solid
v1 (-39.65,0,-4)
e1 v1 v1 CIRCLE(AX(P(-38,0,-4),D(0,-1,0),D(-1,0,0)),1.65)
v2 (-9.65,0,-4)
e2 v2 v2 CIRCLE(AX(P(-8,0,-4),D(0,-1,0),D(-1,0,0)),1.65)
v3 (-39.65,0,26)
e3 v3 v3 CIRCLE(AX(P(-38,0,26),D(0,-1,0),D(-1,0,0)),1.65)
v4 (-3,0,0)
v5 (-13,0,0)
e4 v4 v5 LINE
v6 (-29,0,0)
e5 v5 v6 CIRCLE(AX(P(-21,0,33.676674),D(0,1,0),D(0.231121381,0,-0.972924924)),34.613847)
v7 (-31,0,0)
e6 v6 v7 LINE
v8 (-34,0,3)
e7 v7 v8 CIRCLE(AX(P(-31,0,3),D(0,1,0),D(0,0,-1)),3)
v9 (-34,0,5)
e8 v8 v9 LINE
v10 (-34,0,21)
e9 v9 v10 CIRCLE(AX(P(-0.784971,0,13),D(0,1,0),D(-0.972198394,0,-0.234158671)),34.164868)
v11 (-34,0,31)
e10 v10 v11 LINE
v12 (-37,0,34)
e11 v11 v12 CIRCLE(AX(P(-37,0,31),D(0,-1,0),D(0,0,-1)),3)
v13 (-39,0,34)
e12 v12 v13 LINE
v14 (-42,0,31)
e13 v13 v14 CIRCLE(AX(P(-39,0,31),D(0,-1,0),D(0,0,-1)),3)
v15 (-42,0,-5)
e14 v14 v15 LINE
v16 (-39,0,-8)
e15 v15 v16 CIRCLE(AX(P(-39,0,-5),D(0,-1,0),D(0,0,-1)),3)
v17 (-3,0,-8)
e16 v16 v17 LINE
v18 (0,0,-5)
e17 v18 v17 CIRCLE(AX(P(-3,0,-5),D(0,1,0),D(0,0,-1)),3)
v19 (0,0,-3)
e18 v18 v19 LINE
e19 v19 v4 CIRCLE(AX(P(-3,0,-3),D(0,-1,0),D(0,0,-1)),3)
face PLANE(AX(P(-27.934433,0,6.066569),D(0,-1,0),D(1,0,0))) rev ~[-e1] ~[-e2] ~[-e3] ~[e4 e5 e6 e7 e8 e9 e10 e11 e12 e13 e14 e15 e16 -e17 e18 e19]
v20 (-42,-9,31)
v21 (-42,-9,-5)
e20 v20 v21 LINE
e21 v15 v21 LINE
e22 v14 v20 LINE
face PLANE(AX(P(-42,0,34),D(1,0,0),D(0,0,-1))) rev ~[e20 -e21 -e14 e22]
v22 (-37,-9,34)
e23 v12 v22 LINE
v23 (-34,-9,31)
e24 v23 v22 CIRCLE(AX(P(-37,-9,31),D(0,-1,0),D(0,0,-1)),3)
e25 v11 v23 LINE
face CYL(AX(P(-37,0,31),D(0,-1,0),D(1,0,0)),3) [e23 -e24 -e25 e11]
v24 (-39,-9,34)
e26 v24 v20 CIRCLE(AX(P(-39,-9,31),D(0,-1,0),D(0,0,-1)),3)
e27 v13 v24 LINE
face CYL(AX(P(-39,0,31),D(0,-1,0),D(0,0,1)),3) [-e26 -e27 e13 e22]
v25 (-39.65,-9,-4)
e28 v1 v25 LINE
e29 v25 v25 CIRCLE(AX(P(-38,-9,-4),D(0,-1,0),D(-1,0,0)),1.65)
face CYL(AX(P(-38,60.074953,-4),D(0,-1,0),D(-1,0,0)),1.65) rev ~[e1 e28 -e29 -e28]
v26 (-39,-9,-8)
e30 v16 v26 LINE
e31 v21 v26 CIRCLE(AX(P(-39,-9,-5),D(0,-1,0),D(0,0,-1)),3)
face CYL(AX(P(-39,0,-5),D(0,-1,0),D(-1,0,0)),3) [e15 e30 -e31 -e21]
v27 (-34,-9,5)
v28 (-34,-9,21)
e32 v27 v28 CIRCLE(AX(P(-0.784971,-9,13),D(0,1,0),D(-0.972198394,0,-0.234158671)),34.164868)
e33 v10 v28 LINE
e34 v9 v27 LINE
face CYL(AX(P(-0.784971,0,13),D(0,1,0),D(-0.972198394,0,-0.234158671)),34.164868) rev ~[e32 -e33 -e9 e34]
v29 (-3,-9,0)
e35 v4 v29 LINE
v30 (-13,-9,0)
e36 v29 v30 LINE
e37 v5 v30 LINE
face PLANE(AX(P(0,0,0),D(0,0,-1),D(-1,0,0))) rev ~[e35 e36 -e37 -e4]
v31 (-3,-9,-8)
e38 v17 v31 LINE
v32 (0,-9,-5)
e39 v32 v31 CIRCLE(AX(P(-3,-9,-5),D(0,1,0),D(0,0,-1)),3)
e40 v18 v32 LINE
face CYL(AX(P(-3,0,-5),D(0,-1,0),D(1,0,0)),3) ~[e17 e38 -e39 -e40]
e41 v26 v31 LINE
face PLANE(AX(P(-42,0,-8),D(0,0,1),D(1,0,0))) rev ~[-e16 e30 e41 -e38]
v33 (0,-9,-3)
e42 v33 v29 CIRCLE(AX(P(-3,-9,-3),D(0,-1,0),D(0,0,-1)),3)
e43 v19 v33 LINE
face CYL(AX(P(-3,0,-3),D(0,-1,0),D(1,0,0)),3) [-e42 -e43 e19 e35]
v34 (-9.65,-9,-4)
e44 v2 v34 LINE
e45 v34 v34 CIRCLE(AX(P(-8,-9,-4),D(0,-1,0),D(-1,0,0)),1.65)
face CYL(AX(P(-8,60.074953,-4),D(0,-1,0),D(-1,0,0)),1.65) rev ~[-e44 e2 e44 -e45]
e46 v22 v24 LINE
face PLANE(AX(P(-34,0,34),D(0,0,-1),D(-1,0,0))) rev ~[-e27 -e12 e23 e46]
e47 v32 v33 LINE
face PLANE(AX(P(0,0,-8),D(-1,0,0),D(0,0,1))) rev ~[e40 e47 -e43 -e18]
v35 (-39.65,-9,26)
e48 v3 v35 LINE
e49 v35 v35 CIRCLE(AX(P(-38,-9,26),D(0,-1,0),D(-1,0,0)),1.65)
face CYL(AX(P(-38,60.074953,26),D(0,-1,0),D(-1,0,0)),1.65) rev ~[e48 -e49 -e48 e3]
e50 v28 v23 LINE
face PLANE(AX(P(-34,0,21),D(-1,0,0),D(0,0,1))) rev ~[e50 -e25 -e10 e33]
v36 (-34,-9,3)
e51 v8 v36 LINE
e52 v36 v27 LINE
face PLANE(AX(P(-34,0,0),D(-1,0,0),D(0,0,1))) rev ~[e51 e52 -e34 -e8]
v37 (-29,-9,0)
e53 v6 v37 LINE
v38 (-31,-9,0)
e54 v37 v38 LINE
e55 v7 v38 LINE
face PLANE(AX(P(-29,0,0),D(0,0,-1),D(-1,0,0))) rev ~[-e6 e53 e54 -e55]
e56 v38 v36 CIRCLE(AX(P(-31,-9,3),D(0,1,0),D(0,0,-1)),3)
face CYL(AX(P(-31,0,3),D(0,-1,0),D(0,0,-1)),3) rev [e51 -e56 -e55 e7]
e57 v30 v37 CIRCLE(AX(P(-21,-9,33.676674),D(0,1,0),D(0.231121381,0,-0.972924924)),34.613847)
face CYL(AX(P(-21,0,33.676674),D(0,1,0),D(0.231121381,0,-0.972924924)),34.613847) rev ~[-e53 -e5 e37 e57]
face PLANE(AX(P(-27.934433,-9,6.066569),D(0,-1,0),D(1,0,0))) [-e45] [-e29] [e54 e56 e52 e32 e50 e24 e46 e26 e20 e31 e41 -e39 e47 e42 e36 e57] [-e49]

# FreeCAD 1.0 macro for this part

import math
import FreeCAD as App
import Part
import Sketcher
from FreeCAD import Vector


def edges_at(feature, points):
    """Names of the edges that pass closest to the given points."""
    edges = feature.Shape.Edges
    near = lambda p: min(range(len(edges)), key=lambda i: edges[i].distToShape(Part.Vertex(*p))[0])
    return sorted({f"Edge{near(p) + 1}" for p in points})

doc = App.newDocument("Part")
body = doc.addObject("PartDesign::Body", "Body")

# Sketch on XZ plane
sketch1 = body.newObject("Sketcher::SketchObject", "Sketch")
sketch1.AttachmentSupport = (doc.getObject("XZ_Plane"), [""])
sketch1.MapMode = "FlatFace"
sketch1.addGeometry([
    Part.LineSegment(Vector(0, -8, 0), Vector(0, 0, 0)),  # 0
    Part.LineSegment(Vector(0, 0, 0), Vector(-13, 0, 0)),  # 1
    Part.ArcOfCircle(Part.Circle(Vector(-21, 33.676674, 0), Vector(0, 0, 1), 34.613847), math.radians(-103.363101), math.radians(-76.636899)),  # 2
    Part.LineSegment(Vector(-29, 0, 0), Vector(-34, 0, 0)),  # 3
    Part.LineSegment(Vector(-34, 0, 0), Vector(-34, 5, 0)),  # 4
    Part.ArcOfCircle(Part.Circle(Vector(-0.784971, 13, 0), Vector(0, 0, 1), 34.164868), math.radians(166.457965), math.radians(193.542035)),  # 5
    Part.LineSegment(Vector(-34, 21, 0), Vector(-34, 34, 0)),  # 6
    Part.LineSegment(Vector(-34, 34, 0), Vector(-42, 34, 0)),  # 7
    Part.LineSegment(Vector(-42, 34, 0), Vector(-42, -8, 0)),  # 8
    Part.LineSegment(Vector(-42, -8, 0), Vector(0, -8, 0)),  # 9
], False)
sketch1.addConstraint([
    Sketcher.Constraint("Coincident", 0, 2, 1, 1),
    Sketcher.Constraint("Coincident", 1, 2, 2, 2),
    Sketcher.Constraint("Coincident", 2, 1, 3, 1),
    Sketcher.Constraint("Coincident", 3, 2, 4, 1),
    Sketcher.Constraint("Coincident", 4, 2, 5, 2),
    Sketcher.Constraint("Coincident", 5, 1, 6, 1),
    Sketcher.Constraint("Coincident", 6, 2, 7, 1),
    Sketcher.Constraint("Coincident", 7, 2, 8, 1),
    Sketcher.Constraint("Coincident", 8, 2, 9, 1),
    Sketcher.Constraint("Coincident", 9, 2, 0, 1),
    Sketcher.Constraint("Vertical", 0),
    Sketcher.Constraint("Horizontal", 1),
    Sketcher.Constraint("Horizontal", 3),
    Sketcher.Constraint("Vertical", 4),
    Sketcher.Constraint("Vertical", 6),
    Sketcher.Constraint("Horizontal", 7),
    Sketcher.Constraint("Vertical", 8),
    Sketcher.Constraint("Horizontal", 9),
    Sketcher.Constraint("Coincident", 0, 2, -1, 1),
    Sketcher.Constraint("PointOnObject", 2, 1, -1),
    Sketcher.Constraint("Vertical", 4, 2, 5, 1),
    Sketcher.Constraint("Equal", 7, 0),
    Sketcher.Constraint("Equal", 3, 4),
    Sketcher.Constraint("Equal", 1, 6),
    Sketcher.Constraint("Equal", 9, 8),
    Sketcher.Constraint("DistanceX", 1, 2, 1, 1, 13.0),
    Sketcher.Constraint("DistanceX", 3, 2, 3, 1, 5.0),
    Sketcher.Constraint("DistanceX", 7, 2, 7, 1, 8.0),
    Sketcher.Constraint("DistanceX", 9, 1, 9, 2, 42.0),
    Sketcher.Constraint("Radius", 2, 34.613847),
    Sketcher.Constraint("Radius", 5, 34.164868),
])
pad1 = body.newObject("PartDesign::Pad", "Pad")
pad1.Profile = sketch1
pad1.Length = 9
doc.recompute()

fillet = body.newObject("PartDesign::Fillet", "Fillet")
fillet.Base = (pad1, edges_at(pad1, [
    (-34, -4.5, 34),
    (-42, -4.5, 34),
    (0, -4.5, 0),
    (0, -4.5, -8),
    (-34, -4.5, 0),
    (-42, -4.5, -8),
]))
fillet.Radius = 3

# Sketch on XZ plane
sketch2 = body.newObject("Sketcher::SketchObject", "Sketch001")
sketch2.AttachmentSupport = (doc.getObject("XZ_Plane"), [""])
sketch2.MapMode = "FlatFace"
sketch2.addGeometry([
    Part.Circle(Vector(-38, 26, 0), Vector(0, 0, 1), 1.65),
    Part.Circle(Vector(-38, -4, 0), Vector(0, 0, 1), 1.65),
    Part.Circle(Vector(-8, -4, 0), Vector(0, 0, 1), 1.65),
], False)
sketch2.addConstraint([
    Sketcher.Constraint("Equal", 0, 1),
    Sketcher.Constraint("Equal", 1, 2),
    Sketcher.Constraint("Horizontal", 1, 3, 2, 3),
    Sketcher.Constraint("Vertical", 0, 3, 1, 3),
    Sketcher.Constraint("Diameter", 0, 3.3),
    Sketcher.Constraint("DistanceX", 0, 3, -1, 1, 38.0),
    Sketcher.Constraint("DistanceY", -1, 1, 0, 3, 26.0),
    Sketcher.Constraint("DistanceY", 1, 3, -1, 1, 4.0),
    Sketcher.Constraint("DistanceX", 2, 3, -1, 1, 8.0),
])
doc.recompute()
hole = body.newObject("PartDesign::Hole", "Hole")
hole.Profile = sketch2
hole.ThreadType = "None"
hole.Diameter = 3.3
hole.DepthType = "ThroughAll"
hole.Reversed = True

doc.recompute()
